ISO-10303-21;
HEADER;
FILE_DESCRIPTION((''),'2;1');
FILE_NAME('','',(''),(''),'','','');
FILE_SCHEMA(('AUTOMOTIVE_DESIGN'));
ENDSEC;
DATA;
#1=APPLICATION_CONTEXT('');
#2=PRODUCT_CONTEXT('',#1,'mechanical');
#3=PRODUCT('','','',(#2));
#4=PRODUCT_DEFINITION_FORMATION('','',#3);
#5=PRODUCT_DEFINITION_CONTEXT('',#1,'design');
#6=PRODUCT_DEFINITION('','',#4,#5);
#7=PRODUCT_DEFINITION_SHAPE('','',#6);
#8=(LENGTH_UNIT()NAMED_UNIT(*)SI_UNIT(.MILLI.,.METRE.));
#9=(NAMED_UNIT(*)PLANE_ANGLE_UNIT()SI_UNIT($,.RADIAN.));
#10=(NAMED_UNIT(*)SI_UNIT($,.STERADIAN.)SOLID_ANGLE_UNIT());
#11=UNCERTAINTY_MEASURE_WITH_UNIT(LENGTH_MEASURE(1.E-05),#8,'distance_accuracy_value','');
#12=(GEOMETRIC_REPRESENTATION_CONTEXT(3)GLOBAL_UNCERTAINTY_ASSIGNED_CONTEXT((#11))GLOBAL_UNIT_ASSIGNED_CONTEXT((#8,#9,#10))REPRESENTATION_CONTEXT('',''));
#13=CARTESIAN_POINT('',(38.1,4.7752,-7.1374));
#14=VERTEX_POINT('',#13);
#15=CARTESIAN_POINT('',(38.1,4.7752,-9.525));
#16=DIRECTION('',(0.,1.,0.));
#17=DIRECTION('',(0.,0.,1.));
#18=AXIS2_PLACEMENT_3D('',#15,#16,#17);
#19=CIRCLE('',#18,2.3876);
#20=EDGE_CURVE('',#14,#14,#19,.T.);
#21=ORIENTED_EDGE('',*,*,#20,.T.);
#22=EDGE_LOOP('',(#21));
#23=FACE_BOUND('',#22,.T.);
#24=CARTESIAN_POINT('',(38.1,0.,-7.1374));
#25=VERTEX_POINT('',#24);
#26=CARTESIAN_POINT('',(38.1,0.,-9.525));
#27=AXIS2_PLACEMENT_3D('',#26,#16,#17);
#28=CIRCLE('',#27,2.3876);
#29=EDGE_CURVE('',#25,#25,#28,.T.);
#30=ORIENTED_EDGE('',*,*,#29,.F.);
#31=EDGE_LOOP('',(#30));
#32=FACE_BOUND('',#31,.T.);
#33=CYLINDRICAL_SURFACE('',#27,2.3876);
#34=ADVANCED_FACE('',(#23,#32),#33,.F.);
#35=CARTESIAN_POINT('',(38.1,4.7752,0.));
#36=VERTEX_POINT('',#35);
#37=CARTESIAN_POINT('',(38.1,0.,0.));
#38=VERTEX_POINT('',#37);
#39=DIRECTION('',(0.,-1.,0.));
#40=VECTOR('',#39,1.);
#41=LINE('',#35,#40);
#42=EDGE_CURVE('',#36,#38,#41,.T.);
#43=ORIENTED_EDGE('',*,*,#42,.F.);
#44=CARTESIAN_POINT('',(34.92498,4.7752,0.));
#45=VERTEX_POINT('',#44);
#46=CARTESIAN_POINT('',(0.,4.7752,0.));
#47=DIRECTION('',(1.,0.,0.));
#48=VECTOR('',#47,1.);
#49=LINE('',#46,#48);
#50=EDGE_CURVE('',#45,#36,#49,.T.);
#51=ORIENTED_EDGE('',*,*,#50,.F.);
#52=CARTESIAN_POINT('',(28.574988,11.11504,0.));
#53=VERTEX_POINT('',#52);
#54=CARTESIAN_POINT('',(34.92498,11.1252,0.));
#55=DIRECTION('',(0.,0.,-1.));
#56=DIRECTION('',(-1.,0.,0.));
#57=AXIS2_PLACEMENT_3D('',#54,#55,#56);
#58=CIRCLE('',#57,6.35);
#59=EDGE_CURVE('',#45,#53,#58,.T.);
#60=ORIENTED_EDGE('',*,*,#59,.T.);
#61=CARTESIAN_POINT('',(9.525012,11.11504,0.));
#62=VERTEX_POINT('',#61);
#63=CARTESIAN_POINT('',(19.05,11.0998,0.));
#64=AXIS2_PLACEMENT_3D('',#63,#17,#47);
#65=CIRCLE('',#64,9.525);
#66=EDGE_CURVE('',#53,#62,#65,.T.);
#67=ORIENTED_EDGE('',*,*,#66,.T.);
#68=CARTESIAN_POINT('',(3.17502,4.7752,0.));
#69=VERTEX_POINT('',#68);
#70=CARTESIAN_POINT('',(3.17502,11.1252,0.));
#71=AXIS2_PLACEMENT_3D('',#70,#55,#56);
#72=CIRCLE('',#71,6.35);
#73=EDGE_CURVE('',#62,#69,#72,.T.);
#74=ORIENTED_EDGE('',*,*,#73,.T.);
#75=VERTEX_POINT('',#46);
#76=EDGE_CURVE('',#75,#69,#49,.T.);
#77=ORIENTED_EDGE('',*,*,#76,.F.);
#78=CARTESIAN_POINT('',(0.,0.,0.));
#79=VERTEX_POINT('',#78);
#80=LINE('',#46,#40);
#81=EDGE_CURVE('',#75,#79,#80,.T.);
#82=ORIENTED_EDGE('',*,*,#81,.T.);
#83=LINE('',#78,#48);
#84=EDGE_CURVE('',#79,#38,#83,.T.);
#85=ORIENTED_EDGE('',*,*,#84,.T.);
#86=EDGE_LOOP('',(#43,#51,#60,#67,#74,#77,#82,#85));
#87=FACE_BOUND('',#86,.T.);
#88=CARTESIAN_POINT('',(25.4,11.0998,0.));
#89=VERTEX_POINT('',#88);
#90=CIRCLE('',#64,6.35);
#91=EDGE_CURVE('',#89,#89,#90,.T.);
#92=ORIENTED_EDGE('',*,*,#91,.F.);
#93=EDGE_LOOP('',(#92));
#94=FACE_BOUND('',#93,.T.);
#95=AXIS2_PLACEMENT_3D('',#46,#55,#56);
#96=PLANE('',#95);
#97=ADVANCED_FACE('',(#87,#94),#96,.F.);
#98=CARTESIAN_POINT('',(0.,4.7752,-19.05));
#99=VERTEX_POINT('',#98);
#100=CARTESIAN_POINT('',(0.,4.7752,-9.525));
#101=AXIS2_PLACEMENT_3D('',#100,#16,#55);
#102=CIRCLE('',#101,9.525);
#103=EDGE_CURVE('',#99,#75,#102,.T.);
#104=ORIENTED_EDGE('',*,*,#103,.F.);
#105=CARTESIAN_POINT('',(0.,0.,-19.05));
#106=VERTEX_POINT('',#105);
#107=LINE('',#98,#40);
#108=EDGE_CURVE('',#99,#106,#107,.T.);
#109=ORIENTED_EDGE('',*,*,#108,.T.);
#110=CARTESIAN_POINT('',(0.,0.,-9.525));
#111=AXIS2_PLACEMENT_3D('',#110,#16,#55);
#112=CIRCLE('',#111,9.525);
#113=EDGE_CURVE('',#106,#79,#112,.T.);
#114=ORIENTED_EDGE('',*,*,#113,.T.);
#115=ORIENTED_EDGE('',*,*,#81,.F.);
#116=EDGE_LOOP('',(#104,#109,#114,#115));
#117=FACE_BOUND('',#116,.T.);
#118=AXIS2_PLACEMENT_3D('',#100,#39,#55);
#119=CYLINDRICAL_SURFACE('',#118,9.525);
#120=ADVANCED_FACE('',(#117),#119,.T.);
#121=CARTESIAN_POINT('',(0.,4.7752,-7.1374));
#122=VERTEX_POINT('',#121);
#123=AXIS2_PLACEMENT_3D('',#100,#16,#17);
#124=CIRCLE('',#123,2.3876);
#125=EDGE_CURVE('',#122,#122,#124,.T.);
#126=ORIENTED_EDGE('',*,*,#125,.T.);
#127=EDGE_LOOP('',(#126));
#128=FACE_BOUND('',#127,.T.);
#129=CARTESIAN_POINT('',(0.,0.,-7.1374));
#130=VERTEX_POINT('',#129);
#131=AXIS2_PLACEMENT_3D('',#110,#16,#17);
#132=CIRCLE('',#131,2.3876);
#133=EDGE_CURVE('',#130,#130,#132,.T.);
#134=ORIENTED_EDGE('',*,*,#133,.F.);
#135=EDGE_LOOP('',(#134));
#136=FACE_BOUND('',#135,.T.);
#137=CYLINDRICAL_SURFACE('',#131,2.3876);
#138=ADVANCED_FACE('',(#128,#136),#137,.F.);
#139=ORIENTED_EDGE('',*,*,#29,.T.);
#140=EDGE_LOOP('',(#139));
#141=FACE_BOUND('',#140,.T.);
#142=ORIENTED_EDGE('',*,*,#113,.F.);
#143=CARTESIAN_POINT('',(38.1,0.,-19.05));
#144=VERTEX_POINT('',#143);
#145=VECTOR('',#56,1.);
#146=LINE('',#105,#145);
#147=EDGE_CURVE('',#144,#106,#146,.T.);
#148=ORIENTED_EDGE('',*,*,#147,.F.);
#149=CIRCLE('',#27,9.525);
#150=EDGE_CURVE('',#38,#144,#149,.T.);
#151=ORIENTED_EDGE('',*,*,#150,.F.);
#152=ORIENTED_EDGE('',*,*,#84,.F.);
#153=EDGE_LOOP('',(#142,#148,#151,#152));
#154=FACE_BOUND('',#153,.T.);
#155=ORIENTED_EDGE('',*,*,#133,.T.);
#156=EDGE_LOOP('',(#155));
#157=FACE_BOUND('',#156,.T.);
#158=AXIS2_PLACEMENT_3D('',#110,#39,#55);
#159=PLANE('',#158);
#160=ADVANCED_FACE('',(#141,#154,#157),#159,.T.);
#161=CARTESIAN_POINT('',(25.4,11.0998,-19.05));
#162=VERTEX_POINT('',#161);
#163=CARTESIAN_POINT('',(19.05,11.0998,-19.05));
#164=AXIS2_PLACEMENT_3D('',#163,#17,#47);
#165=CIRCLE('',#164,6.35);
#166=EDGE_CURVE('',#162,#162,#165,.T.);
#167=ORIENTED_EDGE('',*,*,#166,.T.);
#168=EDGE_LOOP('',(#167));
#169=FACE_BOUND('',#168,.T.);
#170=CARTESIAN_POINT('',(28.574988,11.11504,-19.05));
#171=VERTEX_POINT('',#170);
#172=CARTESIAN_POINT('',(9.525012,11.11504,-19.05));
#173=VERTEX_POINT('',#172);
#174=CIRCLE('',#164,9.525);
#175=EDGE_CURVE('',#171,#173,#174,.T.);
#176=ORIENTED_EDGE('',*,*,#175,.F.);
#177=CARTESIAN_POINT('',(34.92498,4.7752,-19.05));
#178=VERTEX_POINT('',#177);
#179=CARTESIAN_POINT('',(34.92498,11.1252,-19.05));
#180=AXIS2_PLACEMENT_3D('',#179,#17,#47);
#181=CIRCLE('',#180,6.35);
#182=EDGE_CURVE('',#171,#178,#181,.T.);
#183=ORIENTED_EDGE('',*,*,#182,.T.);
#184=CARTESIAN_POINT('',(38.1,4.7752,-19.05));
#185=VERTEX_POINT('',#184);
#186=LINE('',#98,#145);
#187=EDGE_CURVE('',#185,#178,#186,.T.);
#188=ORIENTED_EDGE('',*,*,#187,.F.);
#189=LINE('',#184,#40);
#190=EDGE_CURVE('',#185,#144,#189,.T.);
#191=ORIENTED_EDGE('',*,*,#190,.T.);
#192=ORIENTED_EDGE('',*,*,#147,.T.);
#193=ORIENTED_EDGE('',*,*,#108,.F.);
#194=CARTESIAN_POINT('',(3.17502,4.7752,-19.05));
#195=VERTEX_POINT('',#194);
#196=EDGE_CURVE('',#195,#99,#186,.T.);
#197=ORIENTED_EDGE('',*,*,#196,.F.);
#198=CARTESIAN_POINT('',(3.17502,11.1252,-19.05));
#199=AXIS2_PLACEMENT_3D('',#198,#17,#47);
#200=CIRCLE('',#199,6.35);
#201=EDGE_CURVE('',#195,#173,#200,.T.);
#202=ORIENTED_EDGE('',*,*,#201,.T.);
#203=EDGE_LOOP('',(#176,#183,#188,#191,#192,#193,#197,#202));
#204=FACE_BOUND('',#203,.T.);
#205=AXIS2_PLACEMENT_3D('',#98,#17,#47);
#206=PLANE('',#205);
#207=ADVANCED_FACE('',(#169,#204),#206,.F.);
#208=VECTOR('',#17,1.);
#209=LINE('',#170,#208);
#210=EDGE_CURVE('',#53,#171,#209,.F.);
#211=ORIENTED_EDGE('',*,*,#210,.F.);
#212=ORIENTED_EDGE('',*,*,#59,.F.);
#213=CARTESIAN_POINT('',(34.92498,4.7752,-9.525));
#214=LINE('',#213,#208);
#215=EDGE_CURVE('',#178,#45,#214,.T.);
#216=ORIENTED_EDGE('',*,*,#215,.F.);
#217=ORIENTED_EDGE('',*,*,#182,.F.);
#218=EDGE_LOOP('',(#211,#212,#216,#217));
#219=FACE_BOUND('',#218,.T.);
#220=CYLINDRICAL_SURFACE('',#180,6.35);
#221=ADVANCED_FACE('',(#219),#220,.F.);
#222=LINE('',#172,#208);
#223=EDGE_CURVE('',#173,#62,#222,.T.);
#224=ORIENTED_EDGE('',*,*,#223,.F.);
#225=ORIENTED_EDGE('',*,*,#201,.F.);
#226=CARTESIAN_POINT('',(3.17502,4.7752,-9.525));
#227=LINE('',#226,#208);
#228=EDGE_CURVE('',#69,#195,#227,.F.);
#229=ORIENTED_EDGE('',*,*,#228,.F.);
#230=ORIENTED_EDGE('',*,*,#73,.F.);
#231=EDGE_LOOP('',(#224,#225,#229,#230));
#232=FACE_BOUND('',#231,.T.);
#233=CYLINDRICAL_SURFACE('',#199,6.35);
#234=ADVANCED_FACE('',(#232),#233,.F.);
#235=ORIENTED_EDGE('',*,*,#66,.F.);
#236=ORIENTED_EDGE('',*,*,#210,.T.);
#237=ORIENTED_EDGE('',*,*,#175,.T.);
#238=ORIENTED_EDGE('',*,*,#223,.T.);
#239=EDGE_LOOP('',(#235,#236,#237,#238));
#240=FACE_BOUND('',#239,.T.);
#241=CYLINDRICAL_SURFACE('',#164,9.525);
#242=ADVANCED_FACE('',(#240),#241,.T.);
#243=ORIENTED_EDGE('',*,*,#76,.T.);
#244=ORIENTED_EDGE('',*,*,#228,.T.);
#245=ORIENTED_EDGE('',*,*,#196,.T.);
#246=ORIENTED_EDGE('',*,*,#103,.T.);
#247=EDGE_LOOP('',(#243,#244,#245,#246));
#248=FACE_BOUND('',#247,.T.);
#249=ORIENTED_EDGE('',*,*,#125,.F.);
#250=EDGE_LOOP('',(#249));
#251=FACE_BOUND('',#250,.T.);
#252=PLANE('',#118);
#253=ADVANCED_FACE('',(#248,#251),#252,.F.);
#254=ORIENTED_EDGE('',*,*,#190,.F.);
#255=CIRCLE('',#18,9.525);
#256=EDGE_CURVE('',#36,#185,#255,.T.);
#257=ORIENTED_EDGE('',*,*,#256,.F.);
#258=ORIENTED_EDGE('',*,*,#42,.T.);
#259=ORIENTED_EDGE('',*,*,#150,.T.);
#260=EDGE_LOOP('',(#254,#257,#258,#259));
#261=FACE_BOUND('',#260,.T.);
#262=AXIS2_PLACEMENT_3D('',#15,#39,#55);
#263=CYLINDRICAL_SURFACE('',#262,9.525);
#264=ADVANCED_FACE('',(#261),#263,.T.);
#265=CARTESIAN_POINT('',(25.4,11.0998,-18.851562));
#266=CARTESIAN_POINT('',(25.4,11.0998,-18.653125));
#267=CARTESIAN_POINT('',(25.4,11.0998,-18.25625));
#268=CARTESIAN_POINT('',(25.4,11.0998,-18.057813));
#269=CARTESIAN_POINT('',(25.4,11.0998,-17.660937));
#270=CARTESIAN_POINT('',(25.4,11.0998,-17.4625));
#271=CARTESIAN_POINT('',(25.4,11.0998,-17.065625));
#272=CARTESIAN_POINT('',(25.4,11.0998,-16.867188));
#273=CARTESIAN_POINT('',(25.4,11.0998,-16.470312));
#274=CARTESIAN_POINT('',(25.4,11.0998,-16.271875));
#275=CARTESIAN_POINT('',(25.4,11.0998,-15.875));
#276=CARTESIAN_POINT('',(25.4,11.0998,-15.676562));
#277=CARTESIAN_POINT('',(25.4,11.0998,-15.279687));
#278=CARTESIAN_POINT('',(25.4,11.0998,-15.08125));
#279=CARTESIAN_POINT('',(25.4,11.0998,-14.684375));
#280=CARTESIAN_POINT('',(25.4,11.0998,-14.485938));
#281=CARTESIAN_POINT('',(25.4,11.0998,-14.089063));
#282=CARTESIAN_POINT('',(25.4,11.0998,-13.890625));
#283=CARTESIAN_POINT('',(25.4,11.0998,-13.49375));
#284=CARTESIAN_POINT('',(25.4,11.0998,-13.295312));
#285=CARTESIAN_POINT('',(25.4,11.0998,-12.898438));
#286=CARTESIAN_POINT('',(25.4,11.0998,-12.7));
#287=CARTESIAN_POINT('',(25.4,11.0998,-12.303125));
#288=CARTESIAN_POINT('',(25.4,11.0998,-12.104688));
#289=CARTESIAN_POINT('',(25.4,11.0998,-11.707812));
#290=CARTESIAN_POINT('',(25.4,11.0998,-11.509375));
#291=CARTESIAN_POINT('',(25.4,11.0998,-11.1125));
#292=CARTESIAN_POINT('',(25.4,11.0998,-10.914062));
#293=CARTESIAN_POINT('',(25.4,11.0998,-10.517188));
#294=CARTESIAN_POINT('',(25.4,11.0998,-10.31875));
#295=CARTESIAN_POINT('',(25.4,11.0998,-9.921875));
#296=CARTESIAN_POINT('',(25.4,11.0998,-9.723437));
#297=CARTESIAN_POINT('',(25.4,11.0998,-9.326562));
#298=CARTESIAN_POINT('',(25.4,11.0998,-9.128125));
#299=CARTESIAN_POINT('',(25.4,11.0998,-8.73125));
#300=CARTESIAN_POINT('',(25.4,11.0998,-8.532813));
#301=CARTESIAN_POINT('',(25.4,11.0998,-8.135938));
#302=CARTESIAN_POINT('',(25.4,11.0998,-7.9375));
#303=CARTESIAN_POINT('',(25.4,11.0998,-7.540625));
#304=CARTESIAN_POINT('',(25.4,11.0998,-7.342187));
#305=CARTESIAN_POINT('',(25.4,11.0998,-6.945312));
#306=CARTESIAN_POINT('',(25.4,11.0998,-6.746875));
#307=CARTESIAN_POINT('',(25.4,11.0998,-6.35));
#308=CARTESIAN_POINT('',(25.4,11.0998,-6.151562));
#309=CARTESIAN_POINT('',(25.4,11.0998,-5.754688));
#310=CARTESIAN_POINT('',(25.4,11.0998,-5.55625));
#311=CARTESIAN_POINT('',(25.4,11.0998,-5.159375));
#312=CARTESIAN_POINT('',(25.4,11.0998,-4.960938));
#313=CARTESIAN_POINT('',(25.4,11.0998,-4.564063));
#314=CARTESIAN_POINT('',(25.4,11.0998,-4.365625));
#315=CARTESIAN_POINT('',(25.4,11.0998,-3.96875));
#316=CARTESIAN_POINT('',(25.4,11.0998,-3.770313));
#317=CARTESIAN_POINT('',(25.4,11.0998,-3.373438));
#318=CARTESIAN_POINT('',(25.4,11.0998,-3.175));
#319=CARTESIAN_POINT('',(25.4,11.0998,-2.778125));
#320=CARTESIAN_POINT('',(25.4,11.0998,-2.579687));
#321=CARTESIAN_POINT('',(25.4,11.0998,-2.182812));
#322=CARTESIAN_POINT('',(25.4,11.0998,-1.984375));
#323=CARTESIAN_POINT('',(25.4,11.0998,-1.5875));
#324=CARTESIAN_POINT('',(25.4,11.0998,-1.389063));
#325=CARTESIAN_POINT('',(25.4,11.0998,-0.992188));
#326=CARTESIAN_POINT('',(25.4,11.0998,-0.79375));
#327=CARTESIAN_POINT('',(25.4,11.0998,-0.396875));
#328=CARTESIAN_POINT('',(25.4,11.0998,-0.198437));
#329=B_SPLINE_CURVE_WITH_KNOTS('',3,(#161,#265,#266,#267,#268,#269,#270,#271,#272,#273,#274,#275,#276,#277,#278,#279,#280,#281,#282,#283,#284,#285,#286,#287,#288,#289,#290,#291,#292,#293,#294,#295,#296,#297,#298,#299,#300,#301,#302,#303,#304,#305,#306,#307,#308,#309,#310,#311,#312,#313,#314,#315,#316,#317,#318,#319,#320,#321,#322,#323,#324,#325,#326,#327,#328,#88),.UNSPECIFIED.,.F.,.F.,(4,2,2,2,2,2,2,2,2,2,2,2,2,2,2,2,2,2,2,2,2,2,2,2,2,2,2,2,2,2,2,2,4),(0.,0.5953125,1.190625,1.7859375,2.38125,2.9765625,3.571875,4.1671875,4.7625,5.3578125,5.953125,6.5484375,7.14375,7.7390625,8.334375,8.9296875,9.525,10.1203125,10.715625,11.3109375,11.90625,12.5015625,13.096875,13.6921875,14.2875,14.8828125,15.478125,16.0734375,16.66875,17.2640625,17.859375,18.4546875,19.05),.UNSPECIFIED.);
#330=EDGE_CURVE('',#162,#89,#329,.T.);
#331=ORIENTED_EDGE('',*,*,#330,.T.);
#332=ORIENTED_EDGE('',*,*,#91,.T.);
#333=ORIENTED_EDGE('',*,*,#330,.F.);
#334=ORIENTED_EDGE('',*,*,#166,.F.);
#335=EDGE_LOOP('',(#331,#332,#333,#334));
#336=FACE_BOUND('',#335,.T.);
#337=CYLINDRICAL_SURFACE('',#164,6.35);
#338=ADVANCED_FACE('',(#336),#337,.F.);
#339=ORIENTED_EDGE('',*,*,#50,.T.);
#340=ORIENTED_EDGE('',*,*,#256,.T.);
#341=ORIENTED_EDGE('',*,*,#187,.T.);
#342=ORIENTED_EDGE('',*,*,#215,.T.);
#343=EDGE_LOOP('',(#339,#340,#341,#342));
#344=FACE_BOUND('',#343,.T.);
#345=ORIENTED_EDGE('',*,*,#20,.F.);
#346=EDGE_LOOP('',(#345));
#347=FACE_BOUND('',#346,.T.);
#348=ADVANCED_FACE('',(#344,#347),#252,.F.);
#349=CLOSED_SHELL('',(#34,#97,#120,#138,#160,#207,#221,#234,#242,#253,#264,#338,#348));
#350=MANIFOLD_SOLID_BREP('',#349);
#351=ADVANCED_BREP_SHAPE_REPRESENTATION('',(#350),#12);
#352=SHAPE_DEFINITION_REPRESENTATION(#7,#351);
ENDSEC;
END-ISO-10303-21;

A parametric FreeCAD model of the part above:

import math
import FreeCAD as App
import Part
import Sketcher

V = App.Vector
Q = App.Units.Quantity


def edges_at(feature, points):
    """Names of the edges that pass closest to the given points."""
    edges = feature.Shape.Edges
    near = lambda p: min(range(len(edges)), key=lambda i: edges[i].distToShape(Part.Vertex(*p))[0])
    return sorted({f"Edge{near(p) + 1}" for p in points})

doc = App.newDocument("Part")
body = doc.addObject("PartDesign::Body", "Body")

# Sketch on XZ plane
sketch1 = body.newObject("Sketcher::SketchObject", "Sketch")
sketch1.AttachmentSupport = (doc.getObject("XZ_Plane"), [""])
sketch1.MapMode = "FlatFace"
sketch1.addGeometry(Part.LineSegment(V(38, -19, 0), V(0, -19, 0)), False)
sketch1.addGeometry(Part.ArcOfCircle(Part.Circle(V(0, -10, 0), V(0, 0, 1), 10), math.radians(90), math.radians(270)), False)
sketch1.addGeometry(Part.LineSegment(V(0, 0, 0), V(38, 0, 0)), False)
sketch1.addGeometry(Part.ArcOfCircle(Part.Circle(V(38, -10, 0), V(0, 0, 1), 10), math.radians(-90), math.radians(90)), False)
sketch1.addConstraint(Sketcher.Constraint("Tangent", 0, 2, 1, 2))
sketch1.addConstraint(Sketcher.Constraint("Tangent", 1, 1, 2, 1))
sketch1.addConstraint(Sketcher.Constraint("Tangent", 2, 2, 3, 2))
sketch1.addConstraint(Sketcher.Constraint("Tangent", 3, 1, 0, 1))
sketch1.addConstraint(Sketcher.Constraint("Horizontal", 0))
sketch1.addConstraint(Sketcher.Constraint("Horizontal", 2))
sketch1.addConstraint(Sketcher.Constraint("Coincident", 1, 1, -1, 1))
sketch1.addConstraint(Sketcher.Constraint("DistanceX", 0, 2, 0, 1, Q("1.5 in")))
sketch1.addConstraint(Sketcher.Constraint("Radius", 1, Q("0.375 in")))
pad1 = body.newObject("PartDesign::Pad", "Pad")
pad1.Profile = sketch1
pad1.Length = Q("0.188 in")
pad1.Reversed = True

# Sketch on XZ plane
sketch2 = body.newObject("Sketcher::SketchObject", "Sketch001")
sketch2.AttachmentSupport = (doc.getObject("XZ_Plane"), [""])
sketch2.MapMode = "FlatFace"
sketch2.AttachmentOffset = App.Placement(V(0, 0, -0.188 * 25.4), App.Rotation())
sketch2.addGeometry(Part.Circle(V(38.1, -9.5, 0), V(0, 0, 1), 2.4), False)
sketch2.addGeometry(Part.Circle(V(0, -9.5, 0), V(0, 0, 1), 2.4), False)
sketch2.addConstraint(Sketcher.Constraint("Equal", 0, 1))
sketch2.addConstraint(Sketcher.Constraint("PointOnObject", 1, 3, -2))
sketch2.addConstraint(Sketcher.Constraint("Horizontal", 0, 3, 1, 3))
sketch2.addConstraint(Sketcher.Constraint("Diameter", 0, Q("0.188 in")))
sketch2.addConstraint(Sketcher.Constraint("DistanceX", -1, 1, 0, 3, Q("1.5 in")))
sketch2.addConstraint(Sketcher.Constraint("DistanceY", 0, 3, -1, 1, Q("0.375 in")))
pocket1 = body.newObject("PartDesign::Pocket", "Pocket")
pocket1.Profile = sketch2
pocket1.Type = "ThroughAll"
pocket1.Reversed = True

# Sketch on XZ plane
sketch3 = body.newObject("Sketcher::SketchObject", "Sketch002")
sketch3.AttachmentSupport = (doc.getObject("XZ_Plane"), [""])
sketch3.MapMode = "FlatFace"
sketch3.AttachmentOffset = App.Placement(V(0, 0, -0.188 * 25.4), App.Rotation())
sketch3.addGeometry(Part.LineSegment(V(10, -19, 0), V(10, 0, 0)), False)
sketch3.addGeometry(Part.LineSegment(V(10, 0, 0), V(29, 0, 0)), False)
sketch3.addGeometry(Part.LineSegment(V(29, 0, 0), V(29, -19, 0)), False)
sketch3.addGeometry(Part.LineSegment(V(29, -19, 0), V(10, -19, 0)), False)
sketch3.addConstraint(Sketcher.Constraint("Coincident", 0, 2, 1, 1))
sketch3.addConstraint(Sketcher.Constraint("Coincident", 1, 2, 2, 1))
sketch3.addConstraint(Sketcher.Constraint("Coincident", 2, 2, 3, 1))
sketch3.addConstraint(Sketcher.Constraint("Coincident", 3, 2, 0, 1))
sketch3.addConstraint(Sketcher.Constraint("Vertical", 0))
sketch3.addConstraint(Sketcher.Constraint("Horizontal", 1))
sketch3.addConstraint(Sketcher.Constraint("Vertical", 2))
sketch3.addConstraint(Sketcher.Constraint("Horizontal", 3))
sketch3.addConstraint(Sketcher.Constraint("PointOnObject", 0, 2, -1))
sketch3.addConstraint(Sketcher.Constraint("Equal", 3, 0))
sketch3.addConstraint(Sketcher.Constraint("DistanceX", 1, 1, 1, 2, Q("0.75 in")))
sketch3.addConstraint(Sketcher.Constraint("DistanceX", -1, 1, 0, 2, Q("0.375 in")))
pad2 = body.newObject("PartDesign::Pad", "Pad001")
pad2.Profile = sketch3
pad2.Length = Q("0.624 in")
pad2.Reversed = True

# Sketch on XY plane
sketch4 = body.newObject("Sketcher::SketchObject", "Sketch003")
sketch4.AttachmentSupport = (doc.getObject("XY_Plane"), [""])
sketch4.MapMode = "FlatFace"
sketch4.addGeometry(Part.ArcOfCircle(Part.Circle(V(19, 11, 0), V(0, 0, 1), 10), math.radians(0), math.radians(90)), False)
sketch4.addGeometry(Part.LineSegment(V(29, 11, 0), V(29, 21, 0)), False)
sketch4.addGeometry(Part.LineSegment(V(29, 21, 0), V(19, 21, 0)), False)
sketch4.addGeometry(Part.ArcOfCircle(Part.Circle(V(19, 11, 0), V(0, 0, 1), 10), math.radians(90), math.radians(180)), False)
sketch4.addGeometry(Part.LineSegment(V(19, 21, 0), V(10, 21, 0)), False)
sketch4.addGeometry(Part.LineSegment(V(10, 21, 0), V(10, 11, 0)), False)
sketch4.addGeometry(Part.Circle(V(19, 11, 0), V(0, 0, 1), 6), False)
sketch4.addConstraint(Sketcher.Constraint("Tangent", 0, 1, 1, 1))
sketch4.addConstraint(Sketcher.Constraint("Coincident", 1, 2, 2, 1))
sketch4.addConstraint(Sketcher.Constraint("Tangent", 2, 2, 0, 2))
sketch4.addConstraint(Sketcher.Constraint("Tangent", 3, 1, 4, 1))
sketch4.addConstraint(Sketcher.Constraint("Coincident", 4, 2, 5, 1))
sketch4.addConstraint(Sketcher.Constraint("Tangent", 5, 2, 3, 2))
sketch4.addConstraint(Sketcher.Constraint("Vertical", 1))
sketch4.addConstraint(Sketcher.Constraint("Horizontal", 2))
sketch4.addConstraint(Sketcher.Constraint("Horizontal", 4))
sketch4.addConstraint(Sketcher.Constraint("Vertical", 5))
sketch4.addConstraint(Sketcher.Constraint("Coincident", 3, 3, 0, 3))
sketch4.addConstraint(Sketcher.Constraint("Coincident", 6, 3, 0, 3))
sketch4.addConstraint(Sketcher.Constraint("Equal", 0, 3))
sketch4.addConstraint(Sketcher.Constraint("Diameter", 6, Q("0.5 in")))
sketch4.addConstraint(Sketcher.Constraint("Radius", 0, Q("0.375 in")))
sketch4.addConstraint(Sketcher.Constraint("DistanceX", -1, 1, 0, 3, Q("0.75 in")))
sketch4.addConstraint(Sketcher.Constraint("DistanceY", -1, 1, 0, 3, Q("0.437 in")))
pocket2 = body.newObject("PartDesign::Pocket", "Pocket001")
pocket2.Profile = sketch4
pocket2.Type = "ThroughAll"
doc.recompute()

fillet = body.newObject("PartDesign::Fillet", "Fillet")
fillet.Base = (pocket2, edges_at(pocket2, [(28.575, 4.775, -9.525)]))
fillet.Radius = Q("0.25 in")
doc.recompute()

fillet2 = body.newObject("PartDesign::Fillet", "Fillet001")
fillet2.Base = (fillet, edges_at(fillet, [(9.525, 4.775, -9.525)]))
fillet2.Radius = Q("0.25 in")

doc.recompute()
